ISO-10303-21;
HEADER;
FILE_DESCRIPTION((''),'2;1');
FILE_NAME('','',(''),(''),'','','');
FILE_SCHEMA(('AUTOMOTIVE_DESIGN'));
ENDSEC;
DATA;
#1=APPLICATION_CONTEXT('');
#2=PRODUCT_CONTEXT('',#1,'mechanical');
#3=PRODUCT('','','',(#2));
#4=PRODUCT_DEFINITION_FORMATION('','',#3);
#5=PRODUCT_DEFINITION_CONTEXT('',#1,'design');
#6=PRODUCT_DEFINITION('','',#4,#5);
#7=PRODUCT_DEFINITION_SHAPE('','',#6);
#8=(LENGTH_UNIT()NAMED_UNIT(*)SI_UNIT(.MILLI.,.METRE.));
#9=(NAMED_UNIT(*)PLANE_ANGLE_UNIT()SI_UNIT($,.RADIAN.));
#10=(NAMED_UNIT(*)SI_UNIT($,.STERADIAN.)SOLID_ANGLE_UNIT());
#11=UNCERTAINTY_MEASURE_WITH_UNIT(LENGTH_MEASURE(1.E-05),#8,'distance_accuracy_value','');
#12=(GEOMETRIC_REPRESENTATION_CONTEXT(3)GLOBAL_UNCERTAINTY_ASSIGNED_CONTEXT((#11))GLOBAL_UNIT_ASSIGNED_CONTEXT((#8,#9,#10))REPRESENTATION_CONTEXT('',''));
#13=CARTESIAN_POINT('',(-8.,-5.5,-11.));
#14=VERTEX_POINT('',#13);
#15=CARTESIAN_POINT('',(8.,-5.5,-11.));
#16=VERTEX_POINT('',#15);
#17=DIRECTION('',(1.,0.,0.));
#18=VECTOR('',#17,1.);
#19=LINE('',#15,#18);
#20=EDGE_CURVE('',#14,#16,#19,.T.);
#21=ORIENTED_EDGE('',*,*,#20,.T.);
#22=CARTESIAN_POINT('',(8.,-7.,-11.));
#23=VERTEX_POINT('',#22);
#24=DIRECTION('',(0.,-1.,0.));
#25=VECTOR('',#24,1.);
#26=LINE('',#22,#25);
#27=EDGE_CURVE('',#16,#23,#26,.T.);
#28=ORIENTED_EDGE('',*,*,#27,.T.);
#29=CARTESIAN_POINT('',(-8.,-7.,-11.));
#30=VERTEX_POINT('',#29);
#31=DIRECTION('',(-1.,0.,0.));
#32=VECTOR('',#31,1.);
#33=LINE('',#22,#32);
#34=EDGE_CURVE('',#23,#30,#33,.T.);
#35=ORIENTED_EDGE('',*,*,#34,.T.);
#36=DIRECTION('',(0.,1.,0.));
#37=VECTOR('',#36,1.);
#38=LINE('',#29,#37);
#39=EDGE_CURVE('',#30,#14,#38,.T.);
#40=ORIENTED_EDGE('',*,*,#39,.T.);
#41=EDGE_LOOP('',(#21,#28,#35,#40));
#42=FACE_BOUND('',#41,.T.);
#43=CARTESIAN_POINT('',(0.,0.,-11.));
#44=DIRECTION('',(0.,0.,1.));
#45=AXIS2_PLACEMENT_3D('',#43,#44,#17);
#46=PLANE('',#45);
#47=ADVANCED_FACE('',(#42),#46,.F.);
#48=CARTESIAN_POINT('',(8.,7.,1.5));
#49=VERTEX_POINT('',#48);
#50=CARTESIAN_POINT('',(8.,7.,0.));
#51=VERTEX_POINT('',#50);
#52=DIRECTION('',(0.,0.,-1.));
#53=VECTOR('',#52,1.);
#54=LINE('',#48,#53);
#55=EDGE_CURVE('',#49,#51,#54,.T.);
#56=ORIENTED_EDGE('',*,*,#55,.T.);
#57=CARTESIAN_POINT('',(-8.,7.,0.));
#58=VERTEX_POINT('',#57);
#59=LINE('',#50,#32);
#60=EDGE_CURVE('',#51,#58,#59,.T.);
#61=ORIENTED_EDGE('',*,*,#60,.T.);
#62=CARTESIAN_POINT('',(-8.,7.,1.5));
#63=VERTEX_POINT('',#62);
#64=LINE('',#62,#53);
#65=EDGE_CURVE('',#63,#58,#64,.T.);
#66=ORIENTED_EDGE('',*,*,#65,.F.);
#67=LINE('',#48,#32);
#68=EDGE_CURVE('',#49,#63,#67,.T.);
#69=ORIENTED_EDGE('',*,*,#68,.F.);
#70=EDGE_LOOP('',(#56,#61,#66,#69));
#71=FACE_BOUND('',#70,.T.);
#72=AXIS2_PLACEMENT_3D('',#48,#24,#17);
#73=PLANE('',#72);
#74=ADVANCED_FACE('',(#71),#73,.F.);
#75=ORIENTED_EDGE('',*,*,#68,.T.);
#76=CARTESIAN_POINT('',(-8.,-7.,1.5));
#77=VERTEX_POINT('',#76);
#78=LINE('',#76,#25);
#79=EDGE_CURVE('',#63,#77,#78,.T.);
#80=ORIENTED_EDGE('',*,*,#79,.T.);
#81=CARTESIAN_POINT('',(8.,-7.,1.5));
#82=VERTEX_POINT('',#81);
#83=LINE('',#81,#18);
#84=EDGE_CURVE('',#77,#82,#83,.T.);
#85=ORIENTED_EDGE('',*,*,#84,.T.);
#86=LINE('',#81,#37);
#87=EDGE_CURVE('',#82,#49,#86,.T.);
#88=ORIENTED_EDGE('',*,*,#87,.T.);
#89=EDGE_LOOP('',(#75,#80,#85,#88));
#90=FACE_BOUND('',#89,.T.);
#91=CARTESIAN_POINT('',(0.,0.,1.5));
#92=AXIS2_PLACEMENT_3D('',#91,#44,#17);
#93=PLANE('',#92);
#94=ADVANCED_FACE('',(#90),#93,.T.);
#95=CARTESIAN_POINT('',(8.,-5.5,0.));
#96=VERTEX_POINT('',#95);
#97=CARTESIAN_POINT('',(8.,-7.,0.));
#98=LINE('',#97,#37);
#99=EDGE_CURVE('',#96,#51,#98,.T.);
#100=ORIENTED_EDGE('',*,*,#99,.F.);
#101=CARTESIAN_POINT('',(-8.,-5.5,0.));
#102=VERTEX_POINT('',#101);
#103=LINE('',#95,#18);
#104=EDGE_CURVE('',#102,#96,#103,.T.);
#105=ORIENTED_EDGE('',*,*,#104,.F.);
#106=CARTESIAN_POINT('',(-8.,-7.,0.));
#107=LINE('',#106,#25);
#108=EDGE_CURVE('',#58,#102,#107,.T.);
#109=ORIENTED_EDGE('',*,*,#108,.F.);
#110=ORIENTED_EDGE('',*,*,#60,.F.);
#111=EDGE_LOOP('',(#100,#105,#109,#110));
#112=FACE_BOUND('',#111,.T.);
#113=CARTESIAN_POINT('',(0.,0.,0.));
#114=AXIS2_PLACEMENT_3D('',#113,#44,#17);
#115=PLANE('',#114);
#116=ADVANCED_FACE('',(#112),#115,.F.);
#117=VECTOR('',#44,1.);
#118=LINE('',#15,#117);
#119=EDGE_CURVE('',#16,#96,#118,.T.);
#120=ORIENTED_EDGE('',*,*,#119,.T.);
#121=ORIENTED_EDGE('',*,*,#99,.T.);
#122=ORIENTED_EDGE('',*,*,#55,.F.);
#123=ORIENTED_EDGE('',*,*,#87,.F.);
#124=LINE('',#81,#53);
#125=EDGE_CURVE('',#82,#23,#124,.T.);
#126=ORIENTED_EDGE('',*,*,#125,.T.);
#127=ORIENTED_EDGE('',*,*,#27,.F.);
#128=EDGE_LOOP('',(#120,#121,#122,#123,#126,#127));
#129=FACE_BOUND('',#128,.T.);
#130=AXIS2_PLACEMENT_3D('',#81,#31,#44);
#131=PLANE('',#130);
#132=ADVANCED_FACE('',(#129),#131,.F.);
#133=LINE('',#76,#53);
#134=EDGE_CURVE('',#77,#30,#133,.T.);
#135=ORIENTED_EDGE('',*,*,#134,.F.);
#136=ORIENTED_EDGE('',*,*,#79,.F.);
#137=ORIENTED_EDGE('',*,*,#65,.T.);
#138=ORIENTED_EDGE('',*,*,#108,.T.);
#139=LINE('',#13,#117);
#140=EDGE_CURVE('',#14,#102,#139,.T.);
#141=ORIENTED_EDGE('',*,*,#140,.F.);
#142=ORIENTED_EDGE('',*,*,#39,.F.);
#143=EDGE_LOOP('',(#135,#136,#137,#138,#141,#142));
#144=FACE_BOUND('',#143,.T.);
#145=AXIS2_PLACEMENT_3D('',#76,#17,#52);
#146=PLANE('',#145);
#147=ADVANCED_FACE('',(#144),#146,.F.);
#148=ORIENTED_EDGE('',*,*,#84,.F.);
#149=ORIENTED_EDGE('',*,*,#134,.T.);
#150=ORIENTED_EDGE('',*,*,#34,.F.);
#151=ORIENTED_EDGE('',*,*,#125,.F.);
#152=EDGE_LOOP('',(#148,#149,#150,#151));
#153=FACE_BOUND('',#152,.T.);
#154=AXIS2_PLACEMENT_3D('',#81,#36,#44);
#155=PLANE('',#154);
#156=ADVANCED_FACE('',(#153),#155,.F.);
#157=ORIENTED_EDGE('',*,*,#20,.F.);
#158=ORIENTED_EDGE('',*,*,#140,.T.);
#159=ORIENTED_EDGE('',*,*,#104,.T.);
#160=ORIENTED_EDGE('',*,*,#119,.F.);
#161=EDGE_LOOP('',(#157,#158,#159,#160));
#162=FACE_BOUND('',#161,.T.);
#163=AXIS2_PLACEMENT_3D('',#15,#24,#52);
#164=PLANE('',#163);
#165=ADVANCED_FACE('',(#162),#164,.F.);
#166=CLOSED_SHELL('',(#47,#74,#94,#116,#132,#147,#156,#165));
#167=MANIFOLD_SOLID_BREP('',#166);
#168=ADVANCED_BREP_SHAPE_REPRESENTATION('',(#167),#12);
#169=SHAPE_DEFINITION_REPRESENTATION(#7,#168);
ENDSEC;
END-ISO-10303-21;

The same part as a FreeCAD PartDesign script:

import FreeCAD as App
import Part
import Sketcher
from FreeCAD import Vector

doc = App.newDocument("Part")
params = doc.addObject("Spreadsheet::Sheet", "Params")
for row, (alias, value) in enumerate([
    ("sketch1_width", "16 mm"),
    ("sketch1_height", "14 mm"),
    ("pad1_length", "1.5 mm"),
    ("sketch2_width", "16 mm"),
    ("sketch2_height", "1.5 mm"),
    ("pad2_length", "11 mm"),
], start=1):
    params.set(f"A{row}", alias)
    params.set(f"B{row}", "=" + value)
    params.setAlias(f"B{row}", alias)

body = doc.addObject("PartDesign::Body", "Body")

sketch1 = body.newObject("Sketcher::SketchObject", "Sketch")
sketch1.AttachmentSupport = (doc.getObject("XY_Plane"), [""])
sketch1.MapMode = "FlatFace"
sketch1.addGeometry(Part.LineSegment(Vector(-8, 7, 0), Vector(-8, -7, 0)), False)
sketch1.addGeometry(Part.LineSegment(Vector(-8, -7, 0), Vector(8, -7, 0)), False)
sketch1.addGeometry(Part.LineSegment(Vector(8, -7, 0), Vector(8, 7, 0)), False)
sketch1.addGeometry(Part.LineSegment(Vector(8, 7, 0), Vector(-8, 7, 0)), False)
sketch1.addConstraint(Sketcher.Constraint("Coincident", 0, 2, 1, 1))
sketch1.addConstraint(Sketcher.Constraint("Coincident", 1, 2, 2, 1))
sketch1.addConstraint(Sketcher.Constraint("Coincident", 2, 2, 3, 1))
sketch1.addConstraint(Sketcher.Constraint("Coincident", 3, 2, 0, 1))
sketch1.addConstraint(Sketcher.Constraint("Vertical", 0))
sketch1.addConstraint(Sketcher.Constraint("Horizontal", 1))
sketch1.addConstraint(Sketcher.Constraint("Vertical", 2))
sketch1.addConstraint(Sketcher.Constraint("Horizontal", 3))
sketch1.addConstraint(Sketcher.Constraint("Symmetric", 0, 2, 2, 2, -1, 1))
sketch1.addConstraint(Sketcher.Constraint("DistanceX", 1, 1, 1, 2, 16.0))
sketch1.addConstraint(Sketcher.Constraint("DistanceY", 0, 2, 0, 1, 14.0))
sketch1.setExpression("Constraints[9]", "Params.sketch1_width")
sketch1.setExpression("Constraints[10]", "Params.sketch1_height")
pad1 = body.newObject("PartDesign::Pad", "Pad")
pad1.Profile = sketch1
pad1.setExpression("Length", "Params.pad1_length")

sketch2 = body.newObject("Sketcher::SketchObject", "Sketch001")
sketch2.AttachmentSupport = (doc.getObject("XY_Plane"), [""])
sketch2.MapMode = "FlatFace"
sketch2.addGeometry(Part.LineSegment(Vector(8, -5.5, 0), Vector(8, -7, 0)), False)
sketch2.addGeometry(Part.LineSegment(Vector(8, -7, 0), Vector(-8, -7, 0)), False)
sketch2.addGeometry(Part.LineSegment(Vector(-8, -7, 0), Vector(-8, -5.5, 0)), False)
sketch2.addGeometry(Part.LineSegment(Vector(-8, -5.5, 0), Vector(8, -5.5, 0)), False)
sketch2.addConstraint(Sketcher.Constraint("Coincident", 0, 2, 1, 1))
sketch2.addConstraint(Sketcher.Constraint("Coincident", 1, 2, 2, 1))
sketch2.addConstraint(Sketcher.Constraint("Coincident", 2, 2, 3, 1))
sketch2.addConstraint(Sketcher.Constraint("Coincident", 3, 2, 0, 1))
sketch2.addConstraint(Sketcher.Constraint("Vertical", 0))
sketch2.addConstraint(Sketcher.Constraint("Horizontal", 1))
sketch2.addConstraint(Sketcher.Constraint("Vertical", 2))
sketch2.addConstraint(Sketcher.Constraint("Horizontal", 3))
sketch2.addConstraint(Sketcher.Constraint("DistanceX", 1, 2, 1, 1, 16.0))
sketch2.addConstraint(Sketcher.Constraint("DistanceY", 0, 2, 0, 1, 1.5))
sketch2.addConstraint(Sketcher.Constraint("DistanceX", -1, 1, 0, 2, 8.0))
sketch2.addConstraint(Sketcher.Constraint("DistanceY", 0, 2, -1, 1, 7.0))
sketch2.setExpression("Constraints[8]", "Params.sketch2_width")
sketch2.setExpression("Constraints[9]", "Params.sketch2_height")
pad2 = body.newObject("PartDesign::Pad", "Pad001")
pad2.Profile = sketch2
pad2.setExpression("Length", "Params.pad2_length")
pad2.Reversed = True

doc.recompute()
